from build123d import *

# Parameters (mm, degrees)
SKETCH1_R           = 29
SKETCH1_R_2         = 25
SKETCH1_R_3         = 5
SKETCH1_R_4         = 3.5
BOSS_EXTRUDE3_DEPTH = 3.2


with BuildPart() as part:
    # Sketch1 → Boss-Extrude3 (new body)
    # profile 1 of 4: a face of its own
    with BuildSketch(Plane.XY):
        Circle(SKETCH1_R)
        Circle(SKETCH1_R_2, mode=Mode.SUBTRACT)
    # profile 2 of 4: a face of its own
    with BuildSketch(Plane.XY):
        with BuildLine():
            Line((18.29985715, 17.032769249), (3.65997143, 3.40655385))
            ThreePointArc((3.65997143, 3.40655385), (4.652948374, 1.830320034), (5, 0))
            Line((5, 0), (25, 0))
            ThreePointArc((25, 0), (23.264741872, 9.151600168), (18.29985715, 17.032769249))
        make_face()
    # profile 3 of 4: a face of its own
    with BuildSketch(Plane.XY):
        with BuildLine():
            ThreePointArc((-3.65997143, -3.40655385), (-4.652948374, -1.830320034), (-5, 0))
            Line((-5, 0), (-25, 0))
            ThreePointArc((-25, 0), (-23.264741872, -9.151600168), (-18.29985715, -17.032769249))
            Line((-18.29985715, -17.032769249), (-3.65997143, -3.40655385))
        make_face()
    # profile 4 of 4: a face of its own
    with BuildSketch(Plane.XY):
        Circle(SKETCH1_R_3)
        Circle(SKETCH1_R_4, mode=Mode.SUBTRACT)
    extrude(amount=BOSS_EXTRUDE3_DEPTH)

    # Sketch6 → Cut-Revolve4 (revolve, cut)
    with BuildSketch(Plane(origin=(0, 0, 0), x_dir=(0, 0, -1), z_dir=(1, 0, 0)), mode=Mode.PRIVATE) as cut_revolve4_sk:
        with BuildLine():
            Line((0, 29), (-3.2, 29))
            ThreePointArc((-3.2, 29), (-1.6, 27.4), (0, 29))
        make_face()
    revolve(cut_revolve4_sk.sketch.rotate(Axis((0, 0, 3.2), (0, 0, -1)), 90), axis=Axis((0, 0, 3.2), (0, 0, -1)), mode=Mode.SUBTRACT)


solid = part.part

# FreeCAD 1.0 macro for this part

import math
import FreeCAD as App
import Part
import Sketcher

doc = App.newDocument("Part")
body = doc.addObject("PartDesign::Body", "Body")

# Sketch on XY plane
sketch1 = body.newObject("Sketcher::SketchObject", "Sketch")
sketch1.AttachmentSupport = (doc.getObject("XY_Plane"), [""])
sketch1.MapMode = "FlatFace"
sketch1.addGeometry(Part.Circle(App.Vector(0, 0, 0), App.Vector(0, 0, 1), 29), False)
sketch1.addGeometry(Part.ArcOfCircle(Part.Circle(App.Vector(0, 0, 0), App.Vector(0, 0, 1), 25), math.radians(43), math.radians(180)), False)
sketch1.addGeometry(Part.LineSegment(App.Vector(18.3, 17, 0), App.Vector(3.7, 3.4, 0)), False)
sketch1.addGeometry(Part.ArcOfCircle(Part.Circle(App.Vector(0, 0, 0), App.Vector(0, 0, 1), 5), math.radians(43), math.radians(180)), False)
sketch1.addGeometry(Part.LineSegment(App.Vector(-5, 0, 0), App.Vector(-25, 0, 0)), False)
sketch1.addGeometry(Part.ArcOfCircle(Part.Circle(App.Vector(0, 0, 0), App.Vector(0, 0, 1), 25), math.radians(-137), math.radians(0)), False)
sketch1.addGeometry(Part.LineSegment(App.Vector(-18.3, -17, 0), App.Vector(-3.7, -3.4, 0)), False)
sketch1.addGeometry(Part.ArcOfCircle(Part.Circle(App.Vector(0, 0, 0), App.Vector(0, 0, 1), 5), math.radians(-137), math.radians(0)), False)
sketch1.addGeometry(Part.LineSegment(App.Vector(5, 0, 0), App.Vector(25, 0, 0)), False)
sketch1.addGeometry(Part.Circle(App.Vector(0, 0, 0), App.Vector(0, 0, 1), 3.5), False)
sketch1.addConstraint(Sketcher.Constraint("Coincident", 1, 1, 2, 1))
sketch1.addConstraint(Sketcher.Constraint("Coincident", 2, 2, 3, 1))
sketch1.addConstraint(Sketcher.Constraint("Coincident", 3, 2, 4, 1))
sketch1.addConstraint(Sketcher.Constraint("Coincident", 4, 2, 1, 2))
sketch1.addConstraint(Sketcher.Constraint("Coincident", 5, 1, 6, 1))
sketch1.addConstraint(Sketcher.Constraint("Coincident", 6, 2, 7, 1))
sketch1.addConstraint(Sketcher.Constraint("Coincident", 7, 2, 8, 1))
sketch1.addConstraint(Sketcher.Constraint("Coincident", 8, 2, 5, 2))
sketch1.addConstraint(Sketcher.Constraint("Horizontal", 4))
sketch1.addConstraint(Sketcher.Constraint("Horizontal", 8))
sketch1.addConstraint(Sketcher.Constraint("Coincident", 0, 3, -1, 1))
sketch1.addConstraint(Sketcher.Constraint("Coincident", 1, 3, -1, 1))
sketch1.addConstraint(Sketcher.Constraint("Coincident", 3, 3, -1, 1))
sketch1.addConstraint(Sketcher.Constraint("Coincident", 5, 3, -1, 1))
sketch1.addConstraint(Sketcher.Constraint("Coincident", 7, 3, -1, 1))
sketch1.addConstraint(Sketcher.Constraint("Coincident", 9, 3, -1, 1))
sketch1.addConstraint(Sketcher.Constraint("Equal", 1, 5))
sketch1.addConstraint(Sketcher.Constraint("Equal", 3, 7))
sketch1.addConstraint(Sketcher.Constraint("PointOnObject", 3, 2, -1))
sketch1.addConstraint(Sketcher.Constraint("PointOnObject", 7, 2, -1))
sketch1.addConstraint(Sketcher.Constraint("Parallel", 2, 6))
sketch1.addConstraint(Sketcher.Constraint("Diameter", 0, 58.0))
sketch1.addConstraint(Sketcher.Constraint("Diameter", 9, 7.0))
sketch1.addConstraint(Sketcher.Constraint("Radius", 1, 25.0))
sketch1.addConstraint(Sketcher.Constraint("Radius", 3, 5.0))
sketch1.addConstraint(Sketcher.Constraint("DistanceY", -1, 1, 1, 1, 17.032769))
sketch1.addConstraint(Sketcher.Constraint("DistanceX", -1, 1, 2, 2, 3.659971))
sketch1.addConstraint(Sketcher.Constraint("DistanceY", 5, 1, -1, 1, 17.032769))
pad1 = body.newObject("PartDesign::Pad", "Pad")
pad1.Profile = sketch1
pad1.Length = 3.2

# Sketch on YZ plane
sketch2 = body.newObject("Sketcher::SketchObject", "Sketch001")
sketch2.AttachmentSupport = (doc.getObject("YZ_Plane"), [""])
sketch2.MapMode = "FlatFace"
sketch2.addGeometry(Part.LineSegment(App.Vector(29, 0, 0), App.Vector(29, 3.2, 0)), False)
sketch2.addGeometry(Part.ArcOfCircle(Part.Circle(App.Vector(29, 1.6, 0), App.Vector(0, 0, 1), 1.6), math.radians(90), math.radians(270)), False)
sketch2.addConstraint(Sketcher.Constraint("Coincident", 0, 1, 1, 2))
sketch2.addConstraint(Sketcher.Constraint("Coincident", 1, 1, 0, 2))
sketch2.addConstraint(Sketcher.Constraint("Vertical", 0))
sketch2.addConstraint(Sketcher.Constraint("PointOnObject", 0, 1, -1))
sketch2.addConstraint(Sketcher.Constraint("Vertical", 1, 3, 0, 1))
sketch2.addConstraint(Sketcher.Constraint("Radius", 1, 1.6))
sketch2.addConstraint(Sketcher.Constraint("DistanceX", -1, 1, 1, 3, 29.0))
groove = body.newObject("PartDesign::Groove", "Groove")
groove.Profile = sketch2
groove.ReferenceAxis = (sketch2, ["V_Axis"])
groove.Angle = 360

doc.recompute()
